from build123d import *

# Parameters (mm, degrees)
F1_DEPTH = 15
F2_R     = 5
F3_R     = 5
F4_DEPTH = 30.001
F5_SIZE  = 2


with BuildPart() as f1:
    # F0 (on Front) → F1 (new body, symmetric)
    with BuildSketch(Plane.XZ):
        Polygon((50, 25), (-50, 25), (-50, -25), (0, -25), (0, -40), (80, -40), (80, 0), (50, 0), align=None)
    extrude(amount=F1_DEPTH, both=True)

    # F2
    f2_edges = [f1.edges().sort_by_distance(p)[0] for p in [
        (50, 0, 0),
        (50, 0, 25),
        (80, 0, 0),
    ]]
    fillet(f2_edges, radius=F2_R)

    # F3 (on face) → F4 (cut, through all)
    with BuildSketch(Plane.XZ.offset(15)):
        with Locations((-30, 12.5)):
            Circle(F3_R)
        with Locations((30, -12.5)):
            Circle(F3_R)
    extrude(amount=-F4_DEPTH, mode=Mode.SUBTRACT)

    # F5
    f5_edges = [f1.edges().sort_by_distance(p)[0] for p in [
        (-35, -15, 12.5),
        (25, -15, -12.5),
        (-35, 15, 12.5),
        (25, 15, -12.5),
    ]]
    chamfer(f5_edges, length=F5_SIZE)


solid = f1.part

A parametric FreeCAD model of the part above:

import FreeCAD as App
import Part
import Sketcher

V = App.Vector
Q = App.Units.Quantity


def edges_at(feature, points):
    """Names of the edges that pass closest to the given points."""
    edges = feature.Shape.Edges
    near = lambda p: min(range(len(edges)), key=lambda i: edges[i].distToShape(Part.Vertex(*p))[0])
    return sorted({f"Edge{near(p) + 1}" for p in points})

doc = App.newDocument("Part")
body = doc.addObject("PartDesign::Body", "Body")

# Sketch on XZ plane
sketch1 = body.newObject("Sketcher::SketchObject", "Sketch")
sketch1.AttachmentSupport = (doc.getObject("XZ_Plane"), [""])
sketch1.MapMode = "FlatFace"
sketch1.addGeometry([
    Part.LineSegment(V(50, 25, 0), V(-50, 25, 0)),  # 0
    Part.LineSegment(V(-50, 25, 0), V(-50, -25, 0)),  # 1
    Part.LineSegment(V(-50, -25, 0), V(0, -25, 0)),  # 2
    Part.LineSegment(V(0, -25, 0), V(0, -40, 0)),  # 3
    Part.LineSegment(V(0, -40, 0), V(80, -40, 0)),  # 4
    Part.LineSegment(V(80, -40, 0), V(80, 0, 0)),  # 5
    Part.LineSegment(V(80, 0, 0), V(50, 0, 0)),  # 6
    Part.LineSegment(V(50, 0, 0), V(50, 25, 0)),  # 7
], False)
sketch1.addConstraint([
    Sketcher.Constraint("Coincident", 0, 2, 1, 1),
    Sketcher.Constraint("Coincident", 1, 2, 2, 1),
    Sketcher.Constraint("Coincident", 2, 2, 3, 1),
    Sketcher.Constraint("Coincident", 3, 2, 4, 1),
    Sketcher.Constraint("Coincident", 4, 2, 5, 1),
    Sketcher.Constraint("Coincident", 5, 2, 6, 1),
    Sketcher.Constraint("Coincident", 6, 2, 7, 1),
    Sketcher.Constraint("Coincident", 7, 2, 0, 1),
    Sketcher.Constraint("Horizontal", 0),
    Sketcher.Constraint("Vertical", 1),
    Sketcher.Constraint("Horizontal", 2),
    Sketcher.Constraint("Vertical", 3),
    Sketcher.Constraint("Horizontal", 4),
    Sketcher.Constraint("Vertical", 5),
    Sketcher.Constraint("Horizontal", 6),
    Sketcher.Constraint("Vertical", 7),
    Sketcher.Constraint("Symmetric", 1, 2, 7, 2, -1, 1),
    Sketcher.Constraint("PointOnObject", 2, 2, -2),
    Sketcher.Constraint("PointOnObject", 5, 2, -1),
    Sketcher.Constraint("Equal", 2, 1),
    Sketcher.Constraint("DistanceX", 0, 2, 0, 1, Q("100 mm")),
    Sketcher.Constraint("DistanceX", 4, 1, 4, 2, Q("80 mm")),
    Sketcher.Constraint("DistanceY", 3, 2, 3, 1, Q("15 mm")),
])
pad1 = body.newObject("PartDesign::Pad", "Pad")
pad1.Profile = sketch1
pad1.Length = 30
pad1.Midplane = True
doc.recompute()

fillet = body.newObject("PartDesign::Fillet", "Fillet")
fillet.Base = (pad1, edges_at(pad1, [(50, 0, 0), (50, 0, 25), (80, 0, 0)]))
fillet.Radius = 5

# Sketch on XZ plane
sketch2 = body.newObject("Sketcher::SketchObject", "Sketch001")
sketch2.AttachmentSupport = (doc.getObject("XZ_Plane"), [""])
sketch2.MapMode = "FlatFace"
sketch2.AttachmentOffset = App.Placement(V(0, 0, 15), App.Rotation())
sketch2.addGeometry([
    Part.Circle(V(-30, 12, 0), V(0, 0, 1), 5),
    Part.Circle(V(30, -12, 0), V(0, 0, 1), 5),
], False)
sketch2.addConstraint([
    Sketcher.Constraint("Equal", 0, 1),
    Sketcher.Constraint("Symmetric", 0, 3, 1, 3, -1, 1),
    Sketcher.Constraint("Diameter", 0, Q("10 mm")),
    Sketcher.Constraint("DistanceX", 0, 3, -1, 1, Q("30 mm")),
    Sketcher.Constraint("DistanceY", 1, 3, 0, 3, Q("25 mm")),
])
pocket1 = body.newObject("PartDesign::Pocket", "Pocket")
pocket1.Profile = sketch2
pocket1.Type = "ThroughAll"
doc.recompute()

chamfer = body.newObject("PartDesign::Chamfer", "Chamfer")
chamfer.Base = (pocket1, edges_at(pocket1, [
    (-35, -15, 12.5),
    (25, -15, -12.5),
    (-35, 15, 12.5),
    (25, 15, -12.5),
]))
chamfer.Size = 2

doc.recompute()
